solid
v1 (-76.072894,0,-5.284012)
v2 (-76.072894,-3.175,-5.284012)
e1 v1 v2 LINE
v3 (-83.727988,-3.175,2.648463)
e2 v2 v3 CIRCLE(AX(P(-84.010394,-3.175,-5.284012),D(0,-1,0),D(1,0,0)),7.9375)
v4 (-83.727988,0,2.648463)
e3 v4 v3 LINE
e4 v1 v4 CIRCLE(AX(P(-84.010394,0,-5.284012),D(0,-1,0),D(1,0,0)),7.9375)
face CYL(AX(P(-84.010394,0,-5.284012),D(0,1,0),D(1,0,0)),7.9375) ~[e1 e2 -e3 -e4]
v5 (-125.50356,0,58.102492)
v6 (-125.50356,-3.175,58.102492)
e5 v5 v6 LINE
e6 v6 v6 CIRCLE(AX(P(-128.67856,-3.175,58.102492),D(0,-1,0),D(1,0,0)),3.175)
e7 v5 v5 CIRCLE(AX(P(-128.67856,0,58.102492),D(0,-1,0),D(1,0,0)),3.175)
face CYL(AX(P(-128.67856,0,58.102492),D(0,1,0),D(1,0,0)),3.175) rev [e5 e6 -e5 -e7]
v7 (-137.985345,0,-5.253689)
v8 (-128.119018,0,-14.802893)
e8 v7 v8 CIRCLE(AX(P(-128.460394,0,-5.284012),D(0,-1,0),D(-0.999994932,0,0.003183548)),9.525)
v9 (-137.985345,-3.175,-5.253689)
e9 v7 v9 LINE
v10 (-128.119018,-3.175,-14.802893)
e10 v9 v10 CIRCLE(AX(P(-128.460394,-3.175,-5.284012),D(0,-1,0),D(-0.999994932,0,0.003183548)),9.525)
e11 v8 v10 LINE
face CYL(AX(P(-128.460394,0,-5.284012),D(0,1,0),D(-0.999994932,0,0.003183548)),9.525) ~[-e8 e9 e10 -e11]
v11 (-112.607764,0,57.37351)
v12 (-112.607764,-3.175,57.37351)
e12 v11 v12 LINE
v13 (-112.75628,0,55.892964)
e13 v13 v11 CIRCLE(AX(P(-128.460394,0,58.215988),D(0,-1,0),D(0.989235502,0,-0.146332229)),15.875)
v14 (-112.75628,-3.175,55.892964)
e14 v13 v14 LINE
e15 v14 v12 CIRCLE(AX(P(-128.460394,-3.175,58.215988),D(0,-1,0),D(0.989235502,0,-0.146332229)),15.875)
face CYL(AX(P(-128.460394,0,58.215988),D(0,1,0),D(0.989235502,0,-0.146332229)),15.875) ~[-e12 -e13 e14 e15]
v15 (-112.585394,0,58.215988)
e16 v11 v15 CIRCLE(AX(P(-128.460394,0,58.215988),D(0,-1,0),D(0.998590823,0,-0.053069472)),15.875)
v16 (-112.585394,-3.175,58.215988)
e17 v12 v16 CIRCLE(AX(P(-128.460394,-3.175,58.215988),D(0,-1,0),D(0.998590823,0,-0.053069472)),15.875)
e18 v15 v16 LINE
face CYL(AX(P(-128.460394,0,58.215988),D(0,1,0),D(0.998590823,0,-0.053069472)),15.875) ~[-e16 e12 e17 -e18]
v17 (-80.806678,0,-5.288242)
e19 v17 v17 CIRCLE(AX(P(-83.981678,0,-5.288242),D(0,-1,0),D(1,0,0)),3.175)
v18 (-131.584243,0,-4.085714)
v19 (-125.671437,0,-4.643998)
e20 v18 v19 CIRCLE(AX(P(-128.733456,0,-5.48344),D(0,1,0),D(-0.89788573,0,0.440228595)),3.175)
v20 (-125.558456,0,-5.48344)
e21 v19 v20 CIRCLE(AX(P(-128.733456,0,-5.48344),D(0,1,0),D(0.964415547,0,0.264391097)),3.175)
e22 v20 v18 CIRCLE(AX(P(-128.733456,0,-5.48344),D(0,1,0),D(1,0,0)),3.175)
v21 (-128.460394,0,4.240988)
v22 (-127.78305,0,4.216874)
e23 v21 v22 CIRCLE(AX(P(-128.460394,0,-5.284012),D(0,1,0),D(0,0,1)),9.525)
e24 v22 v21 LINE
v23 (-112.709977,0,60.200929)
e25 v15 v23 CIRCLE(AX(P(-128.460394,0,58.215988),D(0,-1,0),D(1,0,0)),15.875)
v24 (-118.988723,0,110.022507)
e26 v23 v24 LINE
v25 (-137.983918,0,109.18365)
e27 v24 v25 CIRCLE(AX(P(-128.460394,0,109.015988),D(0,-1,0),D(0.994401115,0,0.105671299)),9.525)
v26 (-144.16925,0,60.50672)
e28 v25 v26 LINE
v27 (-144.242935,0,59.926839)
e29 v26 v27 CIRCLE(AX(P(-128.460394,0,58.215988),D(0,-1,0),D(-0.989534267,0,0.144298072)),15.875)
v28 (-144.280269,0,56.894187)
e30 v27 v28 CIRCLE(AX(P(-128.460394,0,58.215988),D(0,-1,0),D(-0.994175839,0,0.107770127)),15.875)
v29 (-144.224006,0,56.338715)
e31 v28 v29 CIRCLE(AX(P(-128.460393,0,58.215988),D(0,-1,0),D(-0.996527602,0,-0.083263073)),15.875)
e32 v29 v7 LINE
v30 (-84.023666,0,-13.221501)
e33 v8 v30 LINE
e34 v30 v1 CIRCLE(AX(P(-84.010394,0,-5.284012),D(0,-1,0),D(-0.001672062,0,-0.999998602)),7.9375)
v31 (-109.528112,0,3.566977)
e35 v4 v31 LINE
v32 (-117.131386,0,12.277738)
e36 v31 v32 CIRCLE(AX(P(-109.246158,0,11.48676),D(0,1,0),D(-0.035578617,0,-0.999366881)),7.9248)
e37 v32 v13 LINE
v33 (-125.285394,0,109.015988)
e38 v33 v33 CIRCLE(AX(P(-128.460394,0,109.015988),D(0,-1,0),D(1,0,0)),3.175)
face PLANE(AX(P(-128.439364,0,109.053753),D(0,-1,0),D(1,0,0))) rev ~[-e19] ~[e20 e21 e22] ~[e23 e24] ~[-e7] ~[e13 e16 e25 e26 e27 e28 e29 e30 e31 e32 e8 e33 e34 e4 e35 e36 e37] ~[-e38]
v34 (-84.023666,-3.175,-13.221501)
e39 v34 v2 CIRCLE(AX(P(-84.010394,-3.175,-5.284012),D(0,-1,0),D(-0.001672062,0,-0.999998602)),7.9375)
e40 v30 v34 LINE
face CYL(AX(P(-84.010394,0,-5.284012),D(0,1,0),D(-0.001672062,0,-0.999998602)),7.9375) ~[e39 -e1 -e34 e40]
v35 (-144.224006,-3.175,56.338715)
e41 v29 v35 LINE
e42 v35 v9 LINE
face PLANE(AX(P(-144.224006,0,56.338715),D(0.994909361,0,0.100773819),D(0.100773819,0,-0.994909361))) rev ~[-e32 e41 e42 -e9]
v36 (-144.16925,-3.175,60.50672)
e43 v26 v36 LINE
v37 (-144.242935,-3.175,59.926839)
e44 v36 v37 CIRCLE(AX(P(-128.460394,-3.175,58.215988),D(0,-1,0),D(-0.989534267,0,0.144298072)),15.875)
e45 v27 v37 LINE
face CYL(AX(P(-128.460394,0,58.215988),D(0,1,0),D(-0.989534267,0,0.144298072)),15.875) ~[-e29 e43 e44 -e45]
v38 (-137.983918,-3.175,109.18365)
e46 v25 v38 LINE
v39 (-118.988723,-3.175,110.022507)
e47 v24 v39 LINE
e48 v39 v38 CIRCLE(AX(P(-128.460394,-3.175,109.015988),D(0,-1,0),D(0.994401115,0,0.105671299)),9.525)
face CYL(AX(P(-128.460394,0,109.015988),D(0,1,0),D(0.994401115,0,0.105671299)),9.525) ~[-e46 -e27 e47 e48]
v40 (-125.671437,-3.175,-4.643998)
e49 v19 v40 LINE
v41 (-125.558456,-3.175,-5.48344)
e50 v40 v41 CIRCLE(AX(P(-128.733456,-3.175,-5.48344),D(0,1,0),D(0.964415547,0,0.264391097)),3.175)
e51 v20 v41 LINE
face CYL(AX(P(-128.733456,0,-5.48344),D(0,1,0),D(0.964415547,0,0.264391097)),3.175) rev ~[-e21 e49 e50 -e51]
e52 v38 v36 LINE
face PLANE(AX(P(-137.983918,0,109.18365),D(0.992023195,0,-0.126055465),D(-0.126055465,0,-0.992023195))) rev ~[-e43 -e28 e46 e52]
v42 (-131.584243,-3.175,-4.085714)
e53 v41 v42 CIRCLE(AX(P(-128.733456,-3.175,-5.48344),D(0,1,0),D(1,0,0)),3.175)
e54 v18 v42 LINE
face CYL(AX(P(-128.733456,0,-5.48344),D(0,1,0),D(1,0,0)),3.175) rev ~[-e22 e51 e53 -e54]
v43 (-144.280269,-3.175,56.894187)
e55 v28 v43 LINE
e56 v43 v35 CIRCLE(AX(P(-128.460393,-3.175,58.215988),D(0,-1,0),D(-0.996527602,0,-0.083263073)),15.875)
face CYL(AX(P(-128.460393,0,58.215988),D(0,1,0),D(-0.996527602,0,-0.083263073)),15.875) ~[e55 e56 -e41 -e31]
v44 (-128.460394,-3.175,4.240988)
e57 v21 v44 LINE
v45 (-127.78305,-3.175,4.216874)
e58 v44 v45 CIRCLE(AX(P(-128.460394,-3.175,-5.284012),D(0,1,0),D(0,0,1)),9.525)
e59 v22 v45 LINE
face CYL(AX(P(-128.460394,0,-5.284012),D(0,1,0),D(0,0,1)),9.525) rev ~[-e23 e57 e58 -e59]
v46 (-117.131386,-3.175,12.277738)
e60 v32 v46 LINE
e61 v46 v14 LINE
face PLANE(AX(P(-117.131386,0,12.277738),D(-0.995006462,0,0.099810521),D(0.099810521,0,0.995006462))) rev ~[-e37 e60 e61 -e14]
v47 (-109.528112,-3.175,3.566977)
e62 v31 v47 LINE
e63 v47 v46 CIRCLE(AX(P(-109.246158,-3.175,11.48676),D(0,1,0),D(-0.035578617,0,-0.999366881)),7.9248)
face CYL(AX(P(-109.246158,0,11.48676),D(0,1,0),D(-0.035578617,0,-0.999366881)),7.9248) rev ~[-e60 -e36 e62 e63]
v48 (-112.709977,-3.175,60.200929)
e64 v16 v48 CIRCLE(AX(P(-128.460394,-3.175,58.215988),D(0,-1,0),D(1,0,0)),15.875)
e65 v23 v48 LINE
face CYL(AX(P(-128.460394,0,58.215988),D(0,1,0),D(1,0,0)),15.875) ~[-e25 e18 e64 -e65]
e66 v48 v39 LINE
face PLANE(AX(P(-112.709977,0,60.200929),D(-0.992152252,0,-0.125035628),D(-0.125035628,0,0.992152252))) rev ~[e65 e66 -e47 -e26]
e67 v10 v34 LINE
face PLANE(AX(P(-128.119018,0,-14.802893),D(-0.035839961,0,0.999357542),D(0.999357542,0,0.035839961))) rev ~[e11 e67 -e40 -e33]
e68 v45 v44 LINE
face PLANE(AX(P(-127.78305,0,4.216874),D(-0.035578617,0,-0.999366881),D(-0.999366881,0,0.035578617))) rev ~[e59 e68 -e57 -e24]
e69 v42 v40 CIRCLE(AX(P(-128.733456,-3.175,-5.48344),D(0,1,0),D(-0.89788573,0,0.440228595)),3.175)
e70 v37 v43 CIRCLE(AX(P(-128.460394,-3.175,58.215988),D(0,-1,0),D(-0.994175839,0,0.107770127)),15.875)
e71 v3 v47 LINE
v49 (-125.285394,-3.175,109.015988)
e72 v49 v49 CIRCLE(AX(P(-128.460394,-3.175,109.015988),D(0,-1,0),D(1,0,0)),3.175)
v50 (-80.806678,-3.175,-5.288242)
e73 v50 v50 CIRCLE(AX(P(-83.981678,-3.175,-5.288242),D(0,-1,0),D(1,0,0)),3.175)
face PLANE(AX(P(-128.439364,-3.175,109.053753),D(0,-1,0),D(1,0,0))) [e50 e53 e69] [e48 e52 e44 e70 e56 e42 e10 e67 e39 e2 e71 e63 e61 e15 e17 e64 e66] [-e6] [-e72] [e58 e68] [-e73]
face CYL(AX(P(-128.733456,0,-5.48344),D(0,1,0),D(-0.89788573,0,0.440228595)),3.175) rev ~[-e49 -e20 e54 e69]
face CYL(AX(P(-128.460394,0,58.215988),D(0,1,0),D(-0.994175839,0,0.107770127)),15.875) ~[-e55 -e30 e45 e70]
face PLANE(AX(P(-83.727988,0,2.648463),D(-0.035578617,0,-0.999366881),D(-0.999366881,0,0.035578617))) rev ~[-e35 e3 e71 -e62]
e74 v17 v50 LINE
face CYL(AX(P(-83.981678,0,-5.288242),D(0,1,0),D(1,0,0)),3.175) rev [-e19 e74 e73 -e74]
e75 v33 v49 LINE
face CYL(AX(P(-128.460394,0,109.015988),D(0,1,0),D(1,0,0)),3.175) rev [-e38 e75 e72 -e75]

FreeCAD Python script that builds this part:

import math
import FreeCAD as App
import Part
import Sketcher

V = App.Vector
Q = App.Units.Quantity

doc = App.newDocument("Part")
body = doc.addObject("PartDesign::Body", "Body")

sketch1 = doc.addObject("Sketcher::SketchObject", "Sketch")
body.addObject(sketch1)
sketch1.AttachmentSupport = (doc.XZ_Plane, [""])
sketch1.MapMode = "FlatFace"
sketch1.addGeometry([
    Part.ArcOfCircle(Part.Circle(V(-128.5, 109, 0), V(0, 0, 1), 9.5), math.radians(6), math.radians(179)),
    Part.LineSegment(V(-138, 109.2, 0), V(-144.2, 60.5, 0)),
    Part.ArcOfCircle(Part.Circle(V(-128.5, 58.2, 0), V(0, 0, 1), 15.9), math.radians(171.7), math.radians(173.81)),
    Part.ArcOfCircle(Part.Circle(V(-128.5, 58.2, 0), V(0, 0, 1), 15.9), math.radians(173.81), math.radians(184.78)),
    Part.ArcOfCircle(Part.Circle(V(-128.5, 58.2, 0), V(0, 0, 1), 15.9), math.radians(-175.22), math.radians(-173.21)),
    Part.LineSegment(V(-144.2, 56.3, 0), V(-138, -5.3, 0)),
    Part.ArcOfCircle(Part.Circle(V(-128.5, -5.3, 0), V(0, 0, 1), 9.5), math.radians(180), math.radians(272)),
    Part.LineSegment(V(-128.1, -14.8, 0), V(-84, -13.2, 0)),
    Part.ArcOfCircle(Part.Circle(V(-84, -5.3, 0), V(0, 0, 1), 7.9), math.radians(-90), math.radians(0)),
    Part.ArcOfCircle(Part.Circle(V(-84, -5.3, 0), V(0, 0, 1), 7.9), math.radians(0), math.radians(88)),
    Part.LineSegment(V(-83.7, 2.6, 0), V(-109.5, 3.6, 0)),
    Part.ArcOfCircle(Part.Circle(V(-109.2, 11.5, 0), V(0, 0, 1), 7.9), math.radians(174), math.radians(268)),
    Part.LineSegment(V(-117.1, 12.3, 0), V(-112.8, 55.9, 0)),
    Part.ArcOfCircle(Part.Circle(V(-128.5, 58.2, 0), V(0, 0, 1), 15.9), math.radians(-8.41), math.radians(-3.04)),
    Part.ArcOfCircle(Part.Circle(V(-128.5, 58.2, 0), V(0, 0, 1), 15.9), math.radians(-3.04), math.radians(0)),
    Part.ArcOfCircle(Part.Circle(V(-128.5, 58.2, 0), V(0, 0, 1), 15.9), math.radians(0), math.radians(7.18)),
    Part.LineSegment(V(-112.7, 60.2, 0), V(-119, 110, 0)),
    Part.ArcOfCircle(Part.Circle(V(-128.7, -5.5, 0), V(0, 0, 1), 3.2), math.radians(154), math.radians(360)),
    Part.ArcOfCircle(Part.Circle(V(-128.7, -5.5, 0), V(0, 0, 1), 3.2), math.radians(15), math.radians(154)),
    Part.ArcOfCircle(Part.Circle(V(-128.7, -5.5, 0), V(0, 0, 1), 3.2), math.radians(0), math.radians(15.33)),
    Part.ArcOfCircle(Part.Circle(V(-128.5, -5.3, 0), V(0, 0, 1), 9.5), math.radians(85.92), math.radians(90)),
    Part.LineSegment(V(-127.8, 4.2, 0), V(-128.5, 4.2, 0)),
    Part.Circle(V(-84, -5.3, 0), V(0, 0, 1), 3.2),
    Part.Circle(V(-128.7, 58.1, 0), V(0, 0, 1), 3.2),
    Part.Circle(V(-128.5, 109, 0), V(0, 0, 1), 3.2),
], False)
sketch1.addConstraint([
    Sketcher.Constraint("Coincident", 0, 2, 1, 1),
    Sketcher.Constraint("Coincident", 1, 2, 2, 1),
    Sketcher.Constraint("Tangent", 2, 2, 3, 1),
    Sketcher.Constraint("Tangent", 3, 2, 4, 1),
    Sketcher.Constraint("Coincident", 4, 2, 5, 1),
    Sketcher.Constraint("Coincident", 5, 2, 6, 1),
    Sketcher.Constraint("Tangent", 6, 2, 7, 1),
    Sketcher.Constraint("Coincident", 7, 2, 8, 1),
    Sketcher.Constraint("Tangent", 8, 2, 9, 1),
    Sketcher.Constraint("Tangent", 9, 2, 10, 1),
    Sketcher.Constraint("Tangent", 10, 2, 11, 2),
    Sketcher.Constraint("Tangent", 11, 1, 12, 1),
    Sketcher.Constraint("Coincident", 12, 2, 13, 1),
    Sketcher.Constraint("Tangent", 13, 2, 14, 1),
    Sketcher.Constraint("Tangent", 14, 2, 15, 1),
    Sketcher.Constraint("Tangent", 15, 2, 16, 1),
    Sketcher.Constraint("Coincident", 16, 2, 0, 1),
    Sketcher.Constraint("Tangent", 17, 1, 18, 2),
    Sketcher.Constraint("Tangent", 18, 1, 19, 2),
    Sketcher.Constraint("Tangent", 19, 1, 17, 2),
    Sketcher.Constraint("Coincident", 20, 1, 21, 1),
    Sketcher.Constraint("Coincident", 21, 2, 20, 2),
    Sketcher.Constraint("Coincident", 4, 3, 2, 3),
    Sketcher.Constraint("Coincident", 13, 3, 2, 3),
    Sketcher.Constraint("Coincident", 15, 3, 2, 3),
    Sketcher.Constraint("Coincident", 20, 3, 6, 3),
    Sketcher.Constraint("Coincident", 24, 3, 0, 3),
    Sketcher.Constraint("Equal", 0, 6),
    Sketcher.Constraint("Equal", 8, 9),
    Sketcher.Constraint("Equal", 4, 13),
    Sketcher.Constraint("Equal", 6, 20),
    Sketcher.Constraint("Equal", 19, 22),
    Sketcher.Constraint("Equal", 22, 23),
    Sketcher.Constraint("Equal", 23, 24),
    Sketcher.Constraint("Parallel", 10, 21),
    Sketcher.Constraint("Horizontal", 6, 3, 8, 3),
    Sketcher.Constraint("Horizontal", 20, 3, 8, 2),
    Sketcher.Constraint("Horizontal", 15, 3, 14, 2),
    Sketcher.Constraint("Horizontal", 18, 3, 19, 1),
    Sketcher.Constraint("Vertical", 0, 3, 2, 3),
    Sketcher.Constraint("Vertical", 4, 3, 6, 3),
    Sketcher.Constraint("Vertical", 24, 3, 21, 2),
    Sketcher.Constraint("Diameter", 22, Q("0.25 in")),
    Sketcher.Constraint("Radius", 0, Q("0.375 in")),
    Sketcher.Constraint("Radius", 2, Q("0.625 in")),
    Sketcher.Constraint("Radius", 8, Q("0.3125 in")),
    Sketcher.Constraint("Radius", 11, Q("0.312 in")),
    Sketcher.Constraint("DistanceY", 2, 3, 0, 3, Q("2 in")),
    Sketcher.Constraint("DistanceY", 6, 3, 3, 3, Q("2.5 in")),
    Sketcher.Constraint("DistanceX", 6, 3, 8, 3, Q("1.75 in")),
    Sketcher.Constraint("Distance", 7, Q("44.1237 mm")),
    Sketcher.Constraint("DistanceY", 7, 2, -1, 1, Q("13.221501 mm")),
    Sketcher.Constraint("DistanceY", 18, 1, -1, 1, Q("4.643998 mm")),
    Sketcher.Constraint("DistanceY", 17, 3, 11, 3, Q("16.9702 mm")),
    Sketcher.Constraint("DistanceY", 22, 3, 11, 3, Q("16.775002 mm")),
    Sketcher.Constraint("DistanceY", 3, 2, 2, 3, Q("1.321801 mm")),
    Sketcher.Constraint("Distance", 1, Q("49.068338 mm")),
    Sketcher.Constraint("Distance", 10, Q("25.816468 mm")),
    Sketcher.Constraint("Distance", 16, Q("50.215658 mm")),
    Sketcher.Constraint("DistanceX", 11, 3, -1, 1, Q("109.246158 mm")),
    Sketcher.Constraint("DistanceY", -1, 1, 11, 3, Q("11.48676 mm")),
    Sketcher.Constraint("DistanceX", 23, 3, -1, 1, Q("128.67856 mm")),
    Sketcher.Constraint("DistanceY", -1, 1, 0, 2, Q("109.18365 mm")),
    Sketcher.Constraint("DistanceY", -1, 1, 2, 2, Q("59.926839 mm")),
    Sketcher.Constraint("DistanceY", 5, 2, -1, 1, Q("5.253689 mm")),
    Sketcher.Constraint("DistanceX", 12, 2, -1, 1, Q("112.75628 mm")),
    Sketcher.Constraint("DistanceY", -1, 1, 13, 2, Q("57.37351 mm")),
    Sketcher.Constraint("DistanceX", 11, 3, 22, 3, Q("25.264481 mm")),
    Sketcher.Constraint("DistanceY", 4, 2, 3, 2, Q("0.555471 mm")),
    Sketcher.Constraint("DistanceX", 5, 2, 18, 3, Q("9.251889 mm")),
    Sketcher.Constraint("DistanceX", 17, 1, 6, 3, Q("3.12385 mm")),
    Sketcher.Constraint("DistanceY", -1, 1, 23, 3, Q("58.102492 mm")),
])
pad1 = doc.addObject("PartDesign::Pad", "Pad")
body.addObject(pad1)
pad1.Profile = sketch1
pad1.Length = Q("0.125 in")

doc.recompute()
